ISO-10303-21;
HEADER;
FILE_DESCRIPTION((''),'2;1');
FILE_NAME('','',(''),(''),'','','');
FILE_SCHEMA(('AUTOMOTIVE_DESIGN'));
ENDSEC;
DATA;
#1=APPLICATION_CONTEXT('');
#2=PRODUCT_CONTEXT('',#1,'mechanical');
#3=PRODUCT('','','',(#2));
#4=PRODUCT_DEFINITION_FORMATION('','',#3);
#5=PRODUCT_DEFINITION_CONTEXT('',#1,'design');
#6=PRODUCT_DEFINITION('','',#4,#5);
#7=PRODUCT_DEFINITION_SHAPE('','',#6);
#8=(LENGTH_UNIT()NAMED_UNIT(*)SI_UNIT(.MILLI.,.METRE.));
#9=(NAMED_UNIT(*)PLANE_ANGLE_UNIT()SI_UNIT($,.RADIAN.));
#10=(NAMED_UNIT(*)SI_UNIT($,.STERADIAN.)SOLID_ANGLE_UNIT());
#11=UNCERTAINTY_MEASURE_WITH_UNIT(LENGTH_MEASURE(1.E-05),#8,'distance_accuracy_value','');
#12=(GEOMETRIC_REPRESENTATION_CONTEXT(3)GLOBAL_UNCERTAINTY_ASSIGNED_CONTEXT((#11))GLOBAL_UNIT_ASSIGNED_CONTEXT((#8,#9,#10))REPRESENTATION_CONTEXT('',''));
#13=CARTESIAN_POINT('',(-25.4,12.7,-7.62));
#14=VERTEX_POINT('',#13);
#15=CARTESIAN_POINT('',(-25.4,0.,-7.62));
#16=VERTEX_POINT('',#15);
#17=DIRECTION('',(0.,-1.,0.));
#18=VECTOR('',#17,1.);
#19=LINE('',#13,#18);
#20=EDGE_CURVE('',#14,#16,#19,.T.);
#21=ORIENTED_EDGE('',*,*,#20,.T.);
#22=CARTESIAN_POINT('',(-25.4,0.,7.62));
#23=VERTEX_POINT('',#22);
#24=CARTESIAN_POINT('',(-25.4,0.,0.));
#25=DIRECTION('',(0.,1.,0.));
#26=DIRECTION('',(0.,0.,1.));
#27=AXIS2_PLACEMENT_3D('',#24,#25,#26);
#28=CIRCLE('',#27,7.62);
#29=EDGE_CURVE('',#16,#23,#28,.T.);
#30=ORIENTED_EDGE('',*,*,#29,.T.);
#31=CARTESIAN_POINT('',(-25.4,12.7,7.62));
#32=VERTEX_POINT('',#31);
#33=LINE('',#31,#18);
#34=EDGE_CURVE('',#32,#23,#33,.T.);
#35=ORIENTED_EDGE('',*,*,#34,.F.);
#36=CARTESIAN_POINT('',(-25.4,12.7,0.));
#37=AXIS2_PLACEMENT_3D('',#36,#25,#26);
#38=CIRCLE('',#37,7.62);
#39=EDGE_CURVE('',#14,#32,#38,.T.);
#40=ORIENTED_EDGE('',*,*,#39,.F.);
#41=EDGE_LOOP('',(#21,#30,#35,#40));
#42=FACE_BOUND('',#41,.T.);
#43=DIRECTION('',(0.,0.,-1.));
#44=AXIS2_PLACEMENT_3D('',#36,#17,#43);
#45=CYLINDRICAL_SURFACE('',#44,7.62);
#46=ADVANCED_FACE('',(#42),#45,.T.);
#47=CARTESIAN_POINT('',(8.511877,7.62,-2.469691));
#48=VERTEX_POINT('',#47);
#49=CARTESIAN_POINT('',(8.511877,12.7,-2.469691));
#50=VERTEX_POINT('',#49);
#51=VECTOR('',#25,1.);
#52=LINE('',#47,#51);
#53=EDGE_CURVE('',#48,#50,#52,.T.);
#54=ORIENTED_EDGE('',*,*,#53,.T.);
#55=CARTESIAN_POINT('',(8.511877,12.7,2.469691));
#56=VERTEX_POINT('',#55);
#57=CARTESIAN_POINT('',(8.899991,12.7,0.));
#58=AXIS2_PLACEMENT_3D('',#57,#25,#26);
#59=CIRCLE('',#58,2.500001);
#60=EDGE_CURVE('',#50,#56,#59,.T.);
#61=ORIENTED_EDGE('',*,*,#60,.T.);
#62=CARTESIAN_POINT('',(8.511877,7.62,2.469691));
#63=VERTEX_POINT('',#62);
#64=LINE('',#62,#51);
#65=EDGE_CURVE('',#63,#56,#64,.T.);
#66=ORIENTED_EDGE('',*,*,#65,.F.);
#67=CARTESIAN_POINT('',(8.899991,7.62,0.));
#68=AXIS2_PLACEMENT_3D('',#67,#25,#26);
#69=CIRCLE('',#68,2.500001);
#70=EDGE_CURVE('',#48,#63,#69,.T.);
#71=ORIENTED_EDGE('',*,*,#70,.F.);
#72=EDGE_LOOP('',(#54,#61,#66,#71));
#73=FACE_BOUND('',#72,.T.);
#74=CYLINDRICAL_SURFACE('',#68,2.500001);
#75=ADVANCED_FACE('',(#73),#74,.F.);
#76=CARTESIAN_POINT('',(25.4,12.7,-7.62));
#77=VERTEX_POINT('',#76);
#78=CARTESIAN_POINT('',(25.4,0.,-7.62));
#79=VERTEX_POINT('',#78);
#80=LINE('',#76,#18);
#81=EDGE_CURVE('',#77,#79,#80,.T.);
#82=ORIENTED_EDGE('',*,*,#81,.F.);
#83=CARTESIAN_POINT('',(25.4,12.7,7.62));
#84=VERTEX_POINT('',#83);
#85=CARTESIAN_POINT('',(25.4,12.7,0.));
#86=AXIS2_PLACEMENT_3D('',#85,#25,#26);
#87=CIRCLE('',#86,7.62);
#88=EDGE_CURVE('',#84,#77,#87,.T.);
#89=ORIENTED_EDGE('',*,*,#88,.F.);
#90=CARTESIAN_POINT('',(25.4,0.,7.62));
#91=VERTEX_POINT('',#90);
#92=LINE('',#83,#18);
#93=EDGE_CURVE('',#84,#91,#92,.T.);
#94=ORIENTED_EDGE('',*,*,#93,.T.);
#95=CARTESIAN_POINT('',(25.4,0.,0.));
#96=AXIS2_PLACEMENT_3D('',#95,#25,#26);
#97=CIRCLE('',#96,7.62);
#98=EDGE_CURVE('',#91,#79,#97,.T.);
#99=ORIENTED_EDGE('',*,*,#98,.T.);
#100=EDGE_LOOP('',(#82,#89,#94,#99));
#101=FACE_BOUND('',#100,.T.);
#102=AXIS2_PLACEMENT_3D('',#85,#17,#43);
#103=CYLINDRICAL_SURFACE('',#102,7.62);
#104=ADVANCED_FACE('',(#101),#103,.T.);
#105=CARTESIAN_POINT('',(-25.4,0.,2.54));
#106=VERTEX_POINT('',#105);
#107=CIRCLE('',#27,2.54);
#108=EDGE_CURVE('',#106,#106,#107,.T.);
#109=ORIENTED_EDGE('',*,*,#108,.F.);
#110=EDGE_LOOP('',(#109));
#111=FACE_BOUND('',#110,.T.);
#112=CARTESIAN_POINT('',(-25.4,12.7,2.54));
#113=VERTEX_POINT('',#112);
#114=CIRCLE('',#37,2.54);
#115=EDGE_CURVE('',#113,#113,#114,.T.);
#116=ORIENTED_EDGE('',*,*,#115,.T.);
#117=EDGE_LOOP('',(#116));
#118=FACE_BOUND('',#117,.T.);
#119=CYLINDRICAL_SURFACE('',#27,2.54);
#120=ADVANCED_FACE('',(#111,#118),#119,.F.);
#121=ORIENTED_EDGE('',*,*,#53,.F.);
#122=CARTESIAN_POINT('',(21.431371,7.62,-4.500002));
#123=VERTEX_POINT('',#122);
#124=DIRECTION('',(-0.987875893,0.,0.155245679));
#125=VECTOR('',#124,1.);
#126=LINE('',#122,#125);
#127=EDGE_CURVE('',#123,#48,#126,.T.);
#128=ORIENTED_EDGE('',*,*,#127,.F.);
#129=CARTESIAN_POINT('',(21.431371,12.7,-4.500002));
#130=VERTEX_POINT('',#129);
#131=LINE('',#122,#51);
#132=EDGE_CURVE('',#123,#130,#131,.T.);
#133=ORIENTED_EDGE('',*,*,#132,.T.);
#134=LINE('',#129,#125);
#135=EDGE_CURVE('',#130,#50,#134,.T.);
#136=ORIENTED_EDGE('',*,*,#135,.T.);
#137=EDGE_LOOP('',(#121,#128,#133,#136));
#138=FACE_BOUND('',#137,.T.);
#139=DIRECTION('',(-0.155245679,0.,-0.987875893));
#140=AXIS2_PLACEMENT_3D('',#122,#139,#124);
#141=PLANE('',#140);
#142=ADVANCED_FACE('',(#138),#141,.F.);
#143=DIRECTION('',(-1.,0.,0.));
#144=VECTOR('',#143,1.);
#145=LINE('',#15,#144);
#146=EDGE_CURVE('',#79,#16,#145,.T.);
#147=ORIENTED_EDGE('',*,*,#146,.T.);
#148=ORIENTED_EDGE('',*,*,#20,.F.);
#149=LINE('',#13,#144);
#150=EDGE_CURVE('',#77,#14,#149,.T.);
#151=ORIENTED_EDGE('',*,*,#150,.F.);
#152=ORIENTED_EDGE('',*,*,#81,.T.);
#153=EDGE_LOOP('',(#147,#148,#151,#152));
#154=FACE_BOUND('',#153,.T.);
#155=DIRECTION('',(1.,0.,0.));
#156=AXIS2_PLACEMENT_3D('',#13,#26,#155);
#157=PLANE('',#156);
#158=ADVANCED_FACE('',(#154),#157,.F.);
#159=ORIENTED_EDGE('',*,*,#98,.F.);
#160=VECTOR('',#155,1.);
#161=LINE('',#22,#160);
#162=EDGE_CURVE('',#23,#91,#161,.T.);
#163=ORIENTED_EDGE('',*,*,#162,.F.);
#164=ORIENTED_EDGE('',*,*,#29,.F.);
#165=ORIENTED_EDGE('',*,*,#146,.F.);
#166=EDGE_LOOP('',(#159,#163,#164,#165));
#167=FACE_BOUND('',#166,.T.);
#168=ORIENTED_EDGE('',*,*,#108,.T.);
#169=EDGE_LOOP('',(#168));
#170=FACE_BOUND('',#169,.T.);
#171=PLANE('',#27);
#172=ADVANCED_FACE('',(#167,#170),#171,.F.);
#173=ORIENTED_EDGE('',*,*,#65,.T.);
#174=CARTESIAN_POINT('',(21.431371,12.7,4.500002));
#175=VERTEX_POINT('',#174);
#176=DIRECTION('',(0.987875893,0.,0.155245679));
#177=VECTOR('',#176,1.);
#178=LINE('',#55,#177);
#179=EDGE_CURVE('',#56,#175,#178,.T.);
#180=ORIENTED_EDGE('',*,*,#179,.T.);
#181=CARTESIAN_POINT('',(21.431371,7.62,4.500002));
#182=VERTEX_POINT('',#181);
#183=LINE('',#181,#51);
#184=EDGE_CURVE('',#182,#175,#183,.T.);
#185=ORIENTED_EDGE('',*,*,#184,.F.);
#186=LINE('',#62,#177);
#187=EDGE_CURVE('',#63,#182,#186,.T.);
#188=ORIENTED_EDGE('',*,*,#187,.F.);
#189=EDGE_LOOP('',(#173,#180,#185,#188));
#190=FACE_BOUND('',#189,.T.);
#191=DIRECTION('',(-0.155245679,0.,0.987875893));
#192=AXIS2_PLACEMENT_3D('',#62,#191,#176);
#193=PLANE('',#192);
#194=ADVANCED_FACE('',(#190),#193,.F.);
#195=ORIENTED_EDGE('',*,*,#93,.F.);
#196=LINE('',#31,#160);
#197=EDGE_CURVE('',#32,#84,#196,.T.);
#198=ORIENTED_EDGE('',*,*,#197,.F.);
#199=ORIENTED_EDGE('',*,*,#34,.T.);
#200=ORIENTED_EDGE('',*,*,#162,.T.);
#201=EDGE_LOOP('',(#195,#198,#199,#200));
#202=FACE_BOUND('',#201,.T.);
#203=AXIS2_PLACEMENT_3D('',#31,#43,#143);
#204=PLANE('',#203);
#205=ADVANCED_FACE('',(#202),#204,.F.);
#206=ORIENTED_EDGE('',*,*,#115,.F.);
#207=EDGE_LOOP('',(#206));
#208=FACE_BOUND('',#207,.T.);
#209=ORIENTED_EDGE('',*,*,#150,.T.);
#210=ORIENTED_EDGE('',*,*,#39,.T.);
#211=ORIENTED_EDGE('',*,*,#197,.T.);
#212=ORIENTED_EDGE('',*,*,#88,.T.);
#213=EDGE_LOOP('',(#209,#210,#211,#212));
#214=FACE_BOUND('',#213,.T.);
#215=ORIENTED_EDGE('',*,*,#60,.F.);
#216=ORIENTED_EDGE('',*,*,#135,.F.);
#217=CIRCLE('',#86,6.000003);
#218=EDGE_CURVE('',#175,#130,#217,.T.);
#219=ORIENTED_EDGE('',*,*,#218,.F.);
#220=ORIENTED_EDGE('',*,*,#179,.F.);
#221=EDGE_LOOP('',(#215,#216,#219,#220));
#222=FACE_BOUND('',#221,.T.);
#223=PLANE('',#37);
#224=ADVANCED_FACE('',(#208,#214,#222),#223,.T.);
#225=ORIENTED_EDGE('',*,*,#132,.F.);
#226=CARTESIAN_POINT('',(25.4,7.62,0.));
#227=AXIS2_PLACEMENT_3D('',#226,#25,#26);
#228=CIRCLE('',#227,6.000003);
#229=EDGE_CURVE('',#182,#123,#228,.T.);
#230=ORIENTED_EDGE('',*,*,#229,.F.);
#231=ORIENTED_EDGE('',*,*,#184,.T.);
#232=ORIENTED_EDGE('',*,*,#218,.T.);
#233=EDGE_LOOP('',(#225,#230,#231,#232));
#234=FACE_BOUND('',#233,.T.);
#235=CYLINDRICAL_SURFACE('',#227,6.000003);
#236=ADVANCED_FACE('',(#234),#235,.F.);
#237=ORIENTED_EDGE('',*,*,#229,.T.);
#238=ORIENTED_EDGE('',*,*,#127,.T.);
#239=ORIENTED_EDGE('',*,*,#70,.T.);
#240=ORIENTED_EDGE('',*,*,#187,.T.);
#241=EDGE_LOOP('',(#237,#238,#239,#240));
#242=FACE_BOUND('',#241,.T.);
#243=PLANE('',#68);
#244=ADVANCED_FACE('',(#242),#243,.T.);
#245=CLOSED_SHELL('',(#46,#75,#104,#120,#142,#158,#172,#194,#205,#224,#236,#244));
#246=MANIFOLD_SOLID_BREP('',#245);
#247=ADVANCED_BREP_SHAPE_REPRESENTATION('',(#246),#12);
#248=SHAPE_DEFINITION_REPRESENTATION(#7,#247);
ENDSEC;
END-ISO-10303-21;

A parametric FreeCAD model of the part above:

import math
import FreeCAD as App
import Part
import Sketcher

V = App.Vector
Q = App.Units.Quantity

doc = App.newDocument("Part")
body = doc.addObject("PartDesign::Body", "Body")

sketch1 = body.newObject("Sketcher::SketchObject", "Sketch")
sketch1.AttachmentSupport = (doc.getObject("XZ_Plane"), [""])
sketch1.MapMode = "FlatFace"
sketch1.addGeometry([
    Part.LineSegment(V(25, -8, 0), V(-25, -8, 0)),
    Part.ArcOfCircle(Part.Circle(V(-25, 0, 0), V(0, 0, 1), 8), math.radians(90), math.radians(270)),
    Part.LineSegment(V(-25, 8, 0), V(25, 8, 0)),
    Part.ArcOfCircle(Part.Circle(V(25, 0, 0), V(0, 0, 1), 8), math.radians(-90), math.radians(90)),
], False)
sketch1.addConstraint([
    Sketcher.Constraint("Tangent", 0, 2, 1, 2),
    Sketcher.Constraint("Tangent", 1, 1, 2, 1),
    Sketcher.Constraint("Tangent", 2, 2, 3, 2),
    Sketcher.Constraint("Tangent", 3, 1, 0, 1),
    Sketcher.Constraint("Horizontal", 0),
    Sketcher.Constraint("Horizontal", 2),
    Sketcher.Constraint("Symmetric", 1, 3, 3, 3, -1, 1),
    Sketcher.Constraint("Radius", 1, Q("0.3 in")),
    Sketcher.Constraint("DistanceX", 0, 2, 0, 1, Q("2 in")),
])
pad1 = body.newObject("PartDesign::Pad", "Pad")
pad1.Profile = sketch1
pad1.Length = Q("0.5 in")
pad1.Reversed = True

sketch2 = body.newObject("Sketcher::SketchObject", "Sketch001")
sketch2.AttachmentSupport = (doc.getObject("XZ_Plane"), [""])
sketch2.MapMode = "FlatFace"
sketch2.AttachmentOffset = App.Placement(V(0, 0, -0.5 * 25.4), App.Rotation())
sketch2.addGeometry(Part.Circle(V(-25.4, 0, 0), V(0, 0, 1), 2.5), False)
sketch2.addConstraint([
    Sketcher.Constraint("PointOnObject", 0, 3, -1),
    Sketcher.Constraint("Diameter", 0, Q("0.2 in")),
    Sketcher.Constraint("DistanceX", 0, 3, -1, 1, Q("1 in")),
])
pocket1 = body.newObject("PartDesign::Pocket", "Pocket")
pocket1.Profile = sketch2
pocket1.Type = "ThroughAll"
pocket1.Reversed = True

sketch3 = body.newObject("Sketcher::SketchObject", "Sketch002")
sketch3.AttachmentSupport = (doc.getObject("XZ_Plane"), [""])
sketch3.MapMode = "FlatFace"
sketch3.AttachmentOffset = App.Placement(V(0, 0, -0.5 * 25.4), App.Rotation())
sketch3.addGeometry([
    Part.LineSegment(V(8.5, 2.5, 0), V(21.4, 4.5, 0)),
    Part.ArcOfCircle(Part.Circle(V(25.4, 0, 0), V(0, 0, 1), 6), math.radians(-131), math.radians(131)),
    Part.LineSegment(V(21.4, -4.5, 0), V(8.5, -2.5, 0)),
    Part.ArcOfCircle(Part.Circle(V(8.9, 0, 0), V(0, 0, 1), 2.5), math.radians(99), math.radians(261)),
], False)
sketch3.addConstraint([
    Sketcher.Constraint("Coincident", 0, 2, 1, 2),
    Sketcher.Constraint("Coincident", 1, 1, 2, 1),
    Sketcher.Constraint("Tangent", 2, 2, 3, 2),
    Sketcher.Constraint("Tangent", 3, 1, 0, 1),
    Sketcher.Constraint("Symmetric", 0, 2, 1, 1, -1),
    Sketcher.Constraint("PointOnObject", 3, 3, -1),
    Sketcher.Constraint("DistanceX", -1, 1, 1, 3, Q("1 in")),
    Sketcher.Constraint("Radius", 3, 2.500001),
    Sketcher.Constraint("Radius", 1, 6.000003),
    Sketcher.Constraint("DistanceX", -1, 1, 3, 3, 8.899991),
    Sketcher.Constraint("DistanceX", -1, 1, 0, 2, 21.431371),
])
pocket2 = body.newObject("PartDesign::Pocket", "Pocket001")
pocket2.Profile = sketch3
pocket2.Length = Q("0.2 in")
pocket2.Reversed = True

doc.recompute()
